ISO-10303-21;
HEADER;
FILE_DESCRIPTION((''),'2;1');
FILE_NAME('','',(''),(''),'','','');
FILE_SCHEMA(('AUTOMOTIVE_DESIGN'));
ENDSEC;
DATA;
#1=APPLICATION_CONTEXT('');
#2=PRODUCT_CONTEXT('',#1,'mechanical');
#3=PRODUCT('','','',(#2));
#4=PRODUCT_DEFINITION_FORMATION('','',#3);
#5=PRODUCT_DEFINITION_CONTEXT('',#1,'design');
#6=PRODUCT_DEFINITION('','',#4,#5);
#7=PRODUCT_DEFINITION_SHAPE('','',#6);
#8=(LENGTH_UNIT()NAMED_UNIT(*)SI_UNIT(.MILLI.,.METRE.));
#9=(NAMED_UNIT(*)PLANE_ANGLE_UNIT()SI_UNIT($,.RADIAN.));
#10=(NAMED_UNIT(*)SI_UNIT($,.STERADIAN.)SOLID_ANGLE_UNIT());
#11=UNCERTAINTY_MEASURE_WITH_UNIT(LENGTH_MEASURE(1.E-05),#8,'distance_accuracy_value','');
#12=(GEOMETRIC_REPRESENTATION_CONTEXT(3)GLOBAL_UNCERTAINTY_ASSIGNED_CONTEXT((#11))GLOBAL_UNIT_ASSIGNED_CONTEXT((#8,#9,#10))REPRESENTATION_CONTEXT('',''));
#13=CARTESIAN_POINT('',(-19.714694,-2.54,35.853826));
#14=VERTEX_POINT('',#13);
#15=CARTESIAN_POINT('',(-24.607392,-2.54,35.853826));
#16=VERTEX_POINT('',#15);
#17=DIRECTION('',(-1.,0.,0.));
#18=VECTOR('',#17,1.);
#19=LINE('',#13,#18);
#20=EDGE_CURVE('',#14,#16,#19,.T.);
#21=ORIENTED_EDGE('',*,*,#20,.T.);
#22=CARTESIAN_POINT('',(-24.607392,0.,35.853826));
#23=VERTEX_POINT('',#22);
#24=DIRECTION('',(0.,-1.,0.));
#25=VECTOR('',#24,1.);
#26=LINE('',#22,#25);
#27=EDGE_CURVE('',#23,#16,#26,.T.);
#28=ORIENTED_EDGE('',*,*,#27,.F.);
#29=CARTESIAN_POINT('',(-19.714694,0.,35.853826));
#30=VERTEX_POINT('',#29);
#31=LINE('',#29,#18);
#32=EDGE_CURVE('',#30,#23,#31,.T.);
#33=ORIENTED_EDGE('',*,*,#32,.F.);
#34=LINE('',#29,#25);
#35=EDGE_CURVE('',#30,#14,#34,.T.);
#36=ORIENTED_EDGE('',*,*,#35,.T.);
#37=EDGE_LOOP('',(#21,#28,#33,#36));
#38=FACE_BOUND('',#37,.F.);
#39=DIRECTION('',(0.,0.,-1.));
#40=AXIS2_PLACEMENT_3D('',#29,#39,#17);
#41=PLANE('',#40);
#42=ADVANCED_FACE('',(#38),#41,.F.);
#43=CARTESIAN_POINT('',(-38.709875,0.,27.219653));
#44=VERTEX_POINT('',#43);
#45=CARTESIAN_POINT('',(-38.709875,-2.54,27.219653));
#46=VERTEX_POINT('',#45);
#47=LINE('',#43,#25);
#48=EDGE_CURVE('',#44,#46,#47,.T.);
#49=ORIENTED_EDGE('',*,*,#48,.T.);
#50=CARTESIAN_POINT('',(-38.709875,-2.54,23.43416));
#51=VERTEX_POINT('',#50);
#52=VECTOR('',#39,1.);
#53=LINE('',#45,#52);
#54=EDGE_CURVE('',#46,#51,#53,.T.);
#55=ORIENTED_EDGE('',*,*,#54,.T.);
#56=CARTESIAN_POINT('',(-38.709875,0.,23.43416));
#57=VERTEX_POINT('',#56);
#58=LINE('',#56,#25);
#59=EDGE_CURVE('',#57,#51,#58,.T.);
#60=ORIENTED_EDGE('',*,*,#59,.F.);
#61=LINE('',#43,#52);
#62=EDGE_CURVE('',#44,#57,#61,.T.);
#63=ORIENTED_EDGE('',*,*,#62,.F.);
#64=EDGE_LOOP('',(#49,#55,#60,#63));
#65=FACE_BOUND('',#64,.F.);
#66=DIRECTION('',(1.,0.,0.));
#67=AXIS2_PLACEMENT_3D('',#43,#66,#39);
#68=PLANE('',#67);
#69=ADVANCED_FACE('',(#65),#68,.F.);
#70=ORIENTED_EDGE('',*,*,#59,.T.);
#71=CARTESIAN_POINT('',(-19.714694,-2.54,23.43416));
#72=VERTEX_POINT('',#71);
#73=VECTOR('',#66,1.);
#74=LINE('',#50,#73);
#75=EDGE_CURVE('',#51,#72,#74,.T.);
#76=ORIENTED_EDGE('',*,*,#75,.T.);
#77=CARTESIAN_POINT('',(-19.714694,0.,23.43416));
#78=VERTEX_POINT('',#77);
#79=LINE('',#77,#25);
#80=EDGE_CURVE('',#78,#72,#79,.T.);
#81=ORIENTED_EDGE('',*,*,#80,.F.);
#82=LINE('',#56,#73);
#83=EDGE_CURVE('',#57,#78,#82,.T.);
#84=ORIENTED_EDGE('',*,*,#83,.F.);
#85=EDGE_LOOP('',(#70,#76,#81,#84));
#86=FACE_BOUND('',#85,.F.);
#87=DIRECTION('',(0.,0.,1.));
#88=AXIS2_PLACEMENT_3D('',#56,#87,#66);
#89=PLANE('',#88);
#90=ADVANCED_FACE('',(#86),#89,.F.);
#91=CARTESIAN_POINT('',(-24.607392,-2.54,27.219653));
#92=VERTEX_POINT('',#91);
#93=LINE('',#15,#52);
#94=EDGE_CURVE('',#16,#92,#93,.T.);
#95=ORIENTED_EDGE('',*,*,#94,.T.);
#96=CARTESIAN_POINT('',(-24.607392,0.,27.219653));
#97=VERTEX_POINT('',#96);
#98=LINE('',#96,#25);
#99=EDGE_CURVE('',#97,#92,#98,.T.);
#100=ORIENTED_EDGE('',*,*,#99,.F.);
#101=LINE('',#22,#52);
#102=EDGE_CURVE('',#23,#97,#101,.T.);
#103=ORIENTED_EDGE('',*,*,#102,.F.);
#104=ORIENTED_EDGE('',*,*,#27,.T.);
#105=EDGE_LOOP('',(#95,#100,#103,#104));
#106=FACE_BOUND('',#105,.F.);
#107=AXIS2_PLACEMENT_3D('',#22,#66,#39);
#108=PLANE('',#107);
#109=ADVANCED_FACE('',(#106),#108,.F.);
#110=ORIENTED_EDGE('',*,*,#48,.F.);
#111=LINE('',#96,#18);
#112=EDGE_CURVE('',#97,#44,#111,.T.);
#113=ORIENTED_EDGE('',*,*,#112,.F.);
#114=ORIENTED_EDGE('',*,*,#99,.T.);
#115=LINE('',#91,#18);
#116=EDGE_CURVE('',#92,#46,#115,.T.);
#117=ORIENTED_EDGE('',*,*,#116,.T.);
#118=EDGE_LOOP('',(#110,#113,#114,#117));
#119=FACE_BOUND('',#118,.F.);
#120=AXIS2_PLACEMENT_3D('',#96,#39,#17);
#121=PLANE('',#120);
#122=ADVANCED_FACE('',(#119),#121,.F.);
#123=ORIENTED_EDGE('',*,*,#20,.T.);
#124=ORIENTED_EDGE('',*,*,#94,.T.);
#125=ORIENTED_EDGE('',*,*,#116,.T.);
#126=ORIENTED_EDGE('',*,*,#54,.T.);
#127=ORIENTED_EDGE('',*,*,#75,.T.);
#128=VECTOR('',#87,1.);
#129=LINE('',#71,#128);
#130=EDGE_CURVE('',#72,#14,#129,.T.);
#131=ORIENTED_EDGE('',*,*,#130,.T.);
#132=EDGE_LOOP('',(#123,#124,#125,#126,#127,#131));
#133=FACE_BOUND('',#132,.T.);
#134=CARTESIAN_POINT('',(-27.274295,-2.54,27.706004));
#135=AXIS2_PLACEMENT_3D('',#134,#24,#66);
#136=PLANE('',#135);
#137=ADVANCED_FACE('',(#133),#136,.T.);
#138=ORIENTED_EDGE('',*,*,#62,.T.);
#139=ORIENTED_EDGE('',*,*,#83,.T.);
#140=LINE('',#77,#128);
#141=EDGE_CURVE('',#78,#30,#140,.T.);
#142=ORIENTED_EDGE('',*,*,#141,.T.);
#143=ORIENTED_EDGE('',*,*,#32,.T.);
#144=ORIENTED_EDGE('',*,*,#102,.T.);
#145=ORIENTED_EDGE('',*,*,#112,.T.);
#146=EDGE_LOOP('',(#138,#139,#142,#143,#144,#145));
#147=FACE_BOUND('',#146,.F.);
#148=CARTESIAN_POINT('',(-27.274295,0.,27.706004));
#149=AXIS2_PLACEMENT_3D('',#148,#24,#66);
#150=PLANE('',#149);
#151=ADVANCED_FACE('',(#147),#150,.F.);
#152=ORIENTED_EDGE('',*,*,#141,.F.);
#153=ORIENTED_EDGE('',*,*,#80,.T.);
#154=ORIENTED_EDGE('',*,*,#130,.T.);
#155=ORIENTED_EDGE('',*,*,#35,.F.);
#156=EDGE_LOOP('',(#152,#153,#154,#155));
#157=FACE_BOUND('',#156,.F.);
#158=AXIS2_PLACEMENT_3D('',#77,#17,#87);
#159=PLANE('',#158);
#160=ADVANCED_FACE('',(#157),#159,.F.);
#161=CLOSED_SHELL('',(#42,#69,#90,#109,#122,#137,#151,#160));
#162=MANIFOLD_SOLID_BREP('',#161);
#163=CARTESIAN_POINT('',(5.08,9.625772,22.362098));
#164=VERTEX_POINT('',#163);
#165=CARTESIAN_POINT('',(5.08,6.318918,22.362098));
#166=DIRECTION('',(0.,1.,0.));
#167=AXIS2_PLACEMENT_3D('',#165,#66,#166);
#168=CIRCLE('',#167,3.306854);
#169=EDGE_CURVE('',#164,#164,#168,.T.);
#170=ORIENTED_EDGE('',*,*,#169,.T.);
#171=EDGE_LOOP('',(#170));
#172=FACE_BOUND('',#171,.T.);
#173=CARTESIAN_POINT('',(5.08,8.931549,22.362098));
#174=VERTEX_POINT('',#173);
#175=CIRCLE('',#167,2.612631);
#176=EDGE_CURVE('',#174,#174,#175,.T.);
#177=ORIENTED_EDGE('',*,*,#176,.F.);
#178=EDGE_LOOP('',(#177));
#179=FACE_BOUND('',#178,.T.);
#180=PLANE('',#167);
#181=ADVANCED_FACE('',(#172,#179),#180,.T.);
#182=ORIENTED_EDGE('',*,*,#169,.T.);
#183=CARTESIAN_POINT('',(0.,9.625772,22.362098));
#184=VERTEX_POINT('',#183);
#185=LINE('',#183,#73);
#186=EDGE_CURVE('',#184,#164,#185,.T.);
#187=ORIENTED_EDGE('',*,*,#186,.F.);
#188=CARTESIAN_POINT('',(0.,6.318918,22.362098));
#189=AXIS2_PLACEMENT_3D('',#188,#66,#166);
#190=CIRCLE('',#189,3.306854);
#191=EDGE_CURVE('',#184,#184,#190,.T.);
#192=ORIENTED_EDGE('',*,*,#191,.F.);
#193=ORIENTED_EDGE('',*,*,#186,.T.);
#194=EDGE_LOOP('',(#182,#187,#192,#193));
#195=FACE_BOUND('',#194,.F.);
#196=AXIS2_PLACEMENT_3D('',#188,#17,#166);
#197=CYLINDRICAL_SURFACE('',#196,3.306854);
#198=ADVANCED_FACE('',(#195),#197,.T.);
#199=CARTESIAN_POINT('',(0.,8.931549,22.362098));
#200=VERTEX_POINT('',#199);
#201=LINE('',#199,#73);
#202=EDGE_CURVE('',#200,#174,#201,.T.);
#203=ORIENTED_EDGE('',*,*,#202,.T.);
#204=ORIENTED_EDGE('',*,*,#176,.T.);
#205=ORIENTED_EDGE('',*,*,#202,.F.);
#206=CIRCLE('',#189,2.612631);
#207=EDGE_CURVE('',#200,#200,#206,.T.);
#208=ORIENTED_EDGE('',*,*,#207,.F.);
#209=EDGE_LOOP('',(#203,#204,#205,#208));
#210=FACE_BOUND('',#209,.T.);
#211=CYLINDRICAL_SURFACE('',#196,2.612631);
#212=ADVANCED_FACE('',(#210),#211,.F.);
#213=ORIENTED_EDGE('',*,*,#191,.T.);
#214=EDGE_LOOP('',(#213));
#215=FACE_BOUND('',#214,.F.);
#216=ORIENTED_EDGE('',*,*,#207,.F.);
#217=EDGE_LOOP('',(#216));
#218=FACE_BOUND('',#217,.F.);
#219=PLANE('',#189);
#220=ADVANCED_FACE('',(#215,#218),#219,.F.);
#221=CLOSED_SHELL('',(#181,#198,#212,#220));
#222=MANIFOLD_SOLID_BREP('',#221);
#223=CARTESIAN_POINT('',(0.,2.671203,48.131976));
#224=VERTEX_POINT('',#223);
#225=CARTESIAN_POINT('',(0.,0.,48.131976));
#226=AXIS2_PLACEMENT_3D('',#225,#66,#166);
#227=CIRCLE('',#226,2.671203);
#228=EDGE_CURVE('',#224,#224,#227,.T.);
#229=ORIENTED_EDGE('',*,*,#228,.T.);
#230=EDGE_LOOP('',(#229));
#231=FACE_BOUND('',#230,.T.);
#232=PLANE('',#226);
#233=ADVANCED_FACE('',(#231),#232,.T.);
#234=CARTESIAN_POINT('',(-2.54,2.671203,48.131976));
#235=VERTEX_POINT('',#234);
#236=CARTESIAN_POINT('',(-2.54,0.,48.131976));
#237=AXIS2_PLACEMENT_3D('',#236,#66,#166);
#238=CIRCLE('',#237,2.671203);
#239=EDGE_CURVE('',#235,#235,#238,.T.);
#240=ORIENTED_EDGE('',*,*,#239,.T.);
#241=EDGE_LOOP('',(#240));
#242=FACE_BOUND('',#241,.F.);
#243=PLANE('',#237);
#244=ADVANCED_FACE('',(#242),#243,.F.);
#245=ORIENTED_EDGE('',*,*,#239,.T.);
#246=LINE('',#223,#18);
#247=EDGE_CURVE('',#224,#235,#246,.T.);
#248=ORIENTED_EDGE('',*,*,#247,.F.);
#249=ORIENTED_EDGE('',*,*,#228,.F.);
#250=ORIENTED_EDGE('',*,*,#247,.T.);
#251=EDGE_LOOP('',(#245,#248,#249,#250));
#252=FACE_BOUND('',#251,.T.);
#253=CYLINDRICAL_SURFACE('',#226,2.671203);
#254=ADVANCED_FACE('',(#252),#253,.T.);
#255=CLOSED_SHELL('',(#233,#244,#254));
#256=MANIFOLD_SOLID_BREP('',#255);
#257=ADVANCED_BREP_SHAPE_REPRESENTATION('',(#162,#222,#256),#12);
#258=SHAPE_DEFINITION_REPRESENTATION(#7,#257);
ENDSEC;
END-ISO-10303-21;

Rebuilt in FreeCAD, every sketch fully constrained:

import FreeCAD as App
import Part
import Sketcher
from FreeCAD import Vector
Q = App.Units.Quantity


def add_polygon(sketch, points):
    """Adds a closed chain of lines whose ends are joined by coincident constraints."""
    first, n = sketch.GeometryCount, len(points)
    for a, b in zip(points, points[1:] + points[:1]):
        sketch.addGeometry(Part.LineSegment(App.Vector(*a, 0), App.Vector(*b, 0)), False)
    for i in range(n):
        sketch.addConstraint(Sketcher.Constraint("Coincident", first + i, 2, first + (i + 1) % n, 1))

doc = App.newDocument("Part")
params = doc.addObject("Spreadsheet::Sheet", "Params")
for row, (alias, value) in enumerate([
    ("pad1_length", "0.1 in"),
    ("pad2_length", "0.1 in"),
    ("pad3_length", "0.2 in"),
], start=1):
    params.set(f"A{row}", alias)
    params.set(f"B{row}", "=" + value)
    params.setAlias(f"B{row}", alias)

body = doc.addObject("PartDesign::Body", "Body")

sketch1 = body.newObject("Sketcher::SketchObject", "Sketch")
sketch1.AttachmentSupport = (doc.getObject("XZ_Plane"), [""])
sketch1.MapMode = "FlatFace"
add_polygon(sketch1, [(-38.7, 27.2), (-38.7, 23.4), (-19.7, 23.4), (-19.7, 35.9), (-24.6, 35.9), (-24.6, 27.2)])
sketch1.addConstraint([
    Sketcher.Constraint("Vertical", 0),
    Sketcher.Constraint("Horizontal", 1),
    Sketcher.Constraint("Vertical", 2),
    Sketcher.Constraint("Horizontal", 3),
    Sketcher.Constraint("Vertical", 4),
    Sketcher.Constraint("Horizontal", 5),
    Sketcher.Constraint("DistanceX", 1, 1, 1, 2, Q("18.995181 mm")),
    Sketcher.Constraint("DistanceX", 3, 2, 3, 1, Q("4.892698 mm")),
    Sketcher.Constraint("DistanceY", 0, 2, 0, 1, Q("3.785493 mm")),
    Sketcher.Constraint("DistanceY", 2, 1, 2, 2, Q("12.419666 mm")),
    Sketcher.Constraint("DistanceY", -1, 1, 0, 2, Q("23.43416 mm")),
    Sketcher.Constraint("DistanceX", 0, 2, -1, 1, Q("38.709875 mm")),
])
pad1 = body.newObject("PartDesign::Pad", "Pad")
pad1.Profile = sketch1
pad1.setExpression("Length", "Params.pad1_length")
body2 = doc.addObject("PartDesign::Body", "Body001")

sketch2 = body2.newObject("Sketcher::SketchObject", "Sketch001")
sketch2.AttachmentSupport = (doc.getObject("YZ_Plane001"), [""])
sketch2.MapMode = "FlatFace"
sketch2.addGeometry(Part.Circle(Vector(0, 48.1, 0), Vector(0, 0, 1), 2.7), False)
sketch2.addConstraint([
    Sketcher.Constraint("PointOnObject", 0, 3, -2),
    Sketcher.Constraint("Diameter", 0, Q("5.342406 mm")),
    Sketcher.Constraint("DistanceY", -1, 1, 0, 3, Q("48.131976 mm")),
])
pad2 = body2.newObject("PartDesign::Pad", "Pad001")
pad2.Profile = sketch2
pad2.setExpression("Length", "Params.pad2_length")
pad2.Reversed = True
body3 = doc.addObject("PartDesign::Body", "Body002")

sketch3 = body3.newObject("Sketcher::SketchObject", "Sketch002")
sketch3.AttachmentSupport = (doc.getObject("YZ_Plane002"), [""])
sketch3.MapMode = "FlatFace"
sketch3.addGeometry([
    Part.Circle(Vector(6.3, 22.4, 0), Vector(0, 0, 1), 3.3),
    Part.Circle(Vector(6.3, 22.4, 0), Vector(0, 0, 1), 2.6),
], False)
sketch3.addConstraint([
    Sketcher.Constraint("Coincident", 1, 3, 0, 3),
    Sketcher.Constraint("Diameter", 0, Q("6.613708 mm")),
    Sketcher.Constraint("Diameter", 1, Q("5.225262 mm")),
    Sketcher.Constraint("DistanceX", -1, 1, 0, 3, Q("6.318918 mm")),
    Sketcher.Constraint("DistanceY", -1, 1, 0, 3, Q("22.362098 mm")),
])
pad3 = body3.newObject("PartDesign::Pad", "Pad002")
pad3.Profile = sketch3
pad3.setExpression("Length", "Params.pad3_length")

doc.recompute()
